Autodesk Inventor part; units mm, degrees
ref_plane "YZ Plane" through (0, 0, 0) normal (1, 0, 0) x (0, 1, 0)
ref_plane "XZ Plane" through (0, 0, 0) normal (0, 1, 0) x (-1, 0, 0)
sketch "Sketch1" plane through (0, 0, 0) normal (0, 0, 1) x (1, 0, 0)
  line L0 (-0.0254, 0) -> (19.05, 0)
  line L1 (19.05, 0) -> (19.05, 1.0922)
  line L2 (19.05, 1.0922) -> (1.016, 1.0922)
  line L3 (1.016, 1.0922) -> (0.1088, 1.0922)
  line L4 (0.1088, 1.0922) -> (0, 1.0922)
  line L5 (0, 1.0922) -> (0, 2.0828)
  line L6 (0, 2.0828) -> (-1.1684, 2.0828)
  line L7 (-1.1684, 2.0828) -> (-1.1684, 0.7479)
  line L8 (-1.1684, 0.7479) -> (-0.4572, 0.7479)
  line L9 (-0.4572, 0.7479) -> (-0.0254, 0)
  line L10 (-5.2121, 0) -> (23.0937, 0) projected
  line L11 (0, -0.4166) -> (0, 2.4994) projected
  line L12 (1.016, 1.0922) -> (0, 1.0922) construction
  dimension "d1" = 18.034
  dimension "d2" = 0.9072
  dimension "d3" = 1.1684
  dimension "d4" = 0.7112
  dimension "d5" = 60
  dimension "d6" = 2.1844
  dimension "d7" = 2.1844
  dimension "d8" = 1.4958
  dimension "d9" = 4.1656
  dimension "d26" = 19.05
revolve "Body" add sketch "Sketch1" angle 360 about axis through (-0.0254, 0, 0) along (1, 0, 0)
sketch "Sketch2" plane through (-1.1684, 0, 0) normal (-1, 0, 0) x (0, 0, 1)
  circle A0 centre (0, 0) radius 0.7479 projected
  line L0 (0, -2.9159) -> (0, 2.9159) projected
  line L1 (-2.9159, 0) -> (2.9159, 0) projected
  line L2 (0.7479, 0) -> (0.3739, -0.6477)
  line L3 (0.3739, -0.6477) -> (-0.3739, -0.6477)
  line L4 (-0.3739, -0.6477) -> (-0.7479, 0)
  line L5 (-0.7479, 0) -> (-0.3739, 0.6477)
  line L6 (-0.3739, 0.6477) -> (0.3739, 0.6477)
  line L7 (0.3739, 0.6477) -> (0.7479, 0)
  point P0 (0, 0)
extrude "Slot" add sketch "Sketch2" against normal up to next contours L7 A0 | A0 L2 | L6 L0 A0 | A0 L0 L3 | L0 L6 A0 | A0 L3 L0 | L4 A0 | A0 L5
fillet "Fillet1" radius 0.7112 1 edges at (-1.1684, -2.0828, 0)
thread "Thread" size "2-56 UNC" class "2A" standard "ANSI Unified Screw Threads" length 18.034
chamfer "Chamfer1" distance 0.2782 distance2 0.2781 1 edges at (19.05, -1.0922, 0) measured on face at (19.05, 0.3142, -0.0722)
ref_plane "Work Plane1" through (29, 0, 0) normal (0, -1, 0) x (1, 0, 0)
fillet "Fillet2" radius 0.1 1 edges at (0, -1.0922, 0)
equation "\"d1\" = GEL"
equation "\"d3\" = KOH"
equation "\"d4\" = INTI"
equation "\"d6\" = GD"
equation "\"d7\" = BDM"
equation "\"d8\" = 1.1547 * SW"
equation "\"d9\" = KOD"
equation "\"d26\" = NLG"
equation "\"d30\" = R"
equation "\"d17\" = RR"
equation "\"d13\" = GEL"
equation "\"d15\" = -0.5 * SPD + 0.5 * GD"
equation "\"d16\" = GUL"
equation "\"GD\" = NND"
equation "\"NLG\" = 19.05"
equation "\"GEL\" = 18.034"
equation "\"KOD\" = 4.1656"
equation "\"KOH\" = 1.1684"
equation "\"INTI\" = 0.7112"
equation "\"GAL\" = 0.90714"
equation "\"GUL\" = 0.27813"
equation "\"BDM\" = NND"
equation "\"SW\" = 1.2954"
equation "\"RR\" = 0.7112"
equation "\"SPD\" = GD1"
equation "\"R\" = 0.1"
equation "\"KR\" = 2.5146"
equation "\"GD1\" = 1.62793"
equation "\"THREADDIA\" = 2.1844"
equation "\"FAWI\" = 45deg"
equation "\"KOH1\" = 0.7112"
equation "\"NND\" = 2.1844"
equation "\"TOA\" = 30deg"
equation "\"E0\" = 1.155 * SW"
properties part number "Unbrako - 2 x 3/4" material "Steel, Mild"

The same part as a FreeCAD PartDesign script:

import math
import FreeCAD as App
import Part
import Sketcher
Q = App.Units.Quantity


def edges_at(feature, points):
    """Names of the edges that pass closest to the given points."""
    edges = feature.Shape.Edges
    near = lambda p: min(range(len(edges)), key=lambda i: edges[i].distToShape(Part.Vertex(*p))[0])
    return sorted({f"Edge{near(p) + 1}" for p in points})

doc = App.newDocument("Part")
params = doc.addObject("Spreadsheet::Sheet", "Params")
for row, (alias, value) in enumerate([
    ("sketch1_width", "0.75 in"),
    ("sketch1_width2", "0.046 in"),
    ("sketch1_width3", "0.028 in"),
    ("sketch1_width4", "0.751 in"),
    ("sketch1_height", "0.043 in"),
    ("revolution_angle", "360 deg"),
    ("pad1_length", "0.7691 mm"),
    ("fillet_radius", "0.028 in"),
    ("chamfer_size", "0.2782 mm"),
    ("chamfer_size2", "0.2781 mm"),
    ("fillet2_radius", "0.1 mm"),
], start=1):
    params.set(f"A{row}", alias)
    params.set(f"B{row}", "=" + value)
    params.setAlias(f"B{row}", alias)

body = doc.addObject("PartDesign::Body", "Body")

sketch1 = body.newObject("Sketcher::SketchObject", "Sketch")
sketch1.AttachmentSupport = (doc.getObject("XY_Plane"), [""])
sketch1.MapMode = "FlatFace"
sketch1.addGeometry([
    Part.LineSegment(App.Vector(-0.5, 0.7, 0), App.Vector(0, 0, 0)),
    Part.LineSegment(App.Vector(0, 0, 0), App.Vector(19.1, 0, 0)),
    Part.LineSegment(App.Vector(19.1, 0, 0), App.Vector(19.1, 1.1, 0)),
    Part.LineSegment(App.Vector(19.1, 1.1, 0), App.Vector(0, 1.1, 0)),
    Part.LineSegment(App.Vector(0, 1.1, 0), App.Vector(0, 2.1, 0)),
    Part.LineSegment(App.Vector(0, 2.1, 0), App.Vector(-1.2, 2.1, 0)),
    Part.LineSegment(App.Vector(-1.2, 2.1, 0), App.Vector(-1.2, 0.7, 0)),
    Part.LineSegment(App.Vector(-1.2, 0.7, 0), App.Vector(-0.5, 0.7, 0)),
], False)
sketch1.addConstraint([
    Sketcher.Constraint("Coincident", 0, 2, 1, 1),
    Sketcher.Constraint("Coincident", 1, 2, 2, 1),
    Sketcher.Constraint("Coincident", 2, 2, 3, 1),
    Sketcher.Constraint("Coincident", 3, 2, 4, 1),
    Sketcher.Constraint("Coincident", 4, 2, 5, 1),
    Sketcher.Constraint("Coincident", 5, 2, 6, 1),
    Sketcher.Constraint("Coincident", 6, 2, 7, 1),
    Sketcher.Constraint("Coincident", 7, 2, 0, 1),
    Sketcher.Constraint("Horizontal", 1),
    Sketcher.Constraint("Vertical", 2),
    Sketcher.Constraint("Horizontal", 3),
    Sketcher.Constraint("Vertical", 4),
    Sketcher.Constraint("Horizontal", 5),
    Sketcher.Constraint("Vertical", 6),
    Sketcher.Constraint("Horizontal", 7),
    Sketcher.Constraint("PointOnObject", 0, 2, -1),
    Sketcher.Constraint("PointOnObject", 3, 2, -2),
    Sketcher.Constraint("Angle", 0, Q("-60 deg")),
    Sketcher.Constraint("DistanceX", 3, 2, 3, 1, Q("0.75 in")),
    Sketcher.Constraint("DistanceX", 5, 2, 5, 1, Q("0.046 in")),
    Sketcher.Constraint("DistanceX", 7, 1, 7, 2, Q("0.028 in")),
    Sketcher.Constraint("DistanceX", 1, 1, 1, 2, Q("0.751 in")),
    Sketcher.Constraint("DistanceY", 2, 1, 2, 2, Q("0.043 in")),
    Sketcher.Constraint("DistanceY", 4, 1, 4, 2, Q("0.039 in")),
])
sketch1.setExpression("Constraints[18]", "Params.sketch1_width")
sketch1.setExpression("Constraints[19]", "Params.sketch1_width2")
sketch1.setExpression("Constraints[20]", "Params.sketch1_width3")
sketch1.setExpression("Constraints[21]", "Params.sketch1_width4")
sketch1.setExpression("Constraints[22]", "Params.sketch1_height")
revolution = body.newObject("PartDesign::Revolution", "Revolution")
revolution.Profile = sketch1
revolution.ReferenceAxis = (sketch1, ["H_Axis"])
revolution.setExpression("Angle", "Params.revolution_angle")

sketch2 = body.newObject("Sketcher::SketchObject", "Sketch001")
sketch2.AttachmentSupport = (doc.getObject("YZ_Plane"), [""])
sketch2.MapMode = "FlatFace"
sketch2.AttachmentOffset = App.Placement(App.Vector(0, 0, -0.046 * 25.4), App.Rotation())
sketch2.addGeometry([
    Part.LineSegment(App.Vector(0.6, 0.4, 0), App.Vector(0, 0.7, 0)),
    Part.ArcOfCircle(Part.Circle(App.Vector(0, 0, 0), App.Vector(0, 0, 1), 0.7), math.radians(30), math.radians(90)),
    Part.ArcOfCircle(Part.Circle(App.Vector(0, 0, 0), App.Vector(0, 0, 1), 0.7), math.radians(90), math.radians(150)),
    Part.LineSegment(App.Vector(0, 0.7, 0), App.Vector(-0.6, 0.4, 0)),
    Part.ArcOfCircle(Part.Circle(App.Vector(0, 0, 0), App.Vector(0, 0, 1), 0.7), math.radians(-30), math.radians(30)),
    Part.LineSegment(App.Vector(0.6, 0.4, 0), App.Vector(0.6, -0.4, 0)),
    Part.LineSegment(App.Vector(-0.6, 0.4, 0), App.Vector(-0.6, -0.4, 0)),
    Part.ArcOfCircle(Part.Circle(App.Vector(0, 0, 0), App.Vector(0, 0, 1), 0.7), math.radians(150), math.radians(210)),
    Part.LineSegment(App.Vector(-0.6, -0.4, 0), App.Vector(0, -0.7, 0)),
    Part.ArcOfCircle(Part.Circle(App.Vector(0, 0, 0), App.Vector(0, 0, 1), 0.7), math.radians(-150), math.radians(-90)),
    Part.ArcOfCircle(Part.Circle(App.Vector(0, 0, 0), App.Vector(0, 0, 1), 0.7), math.radians(-90), math.radians(-30)),
    Part.LineSegment(App.Vector(0, -0.7, 0), App.Vector(0.6, -0.4, 0)),
], False)
sketch2.addConstraint([
    Sketcher.Constraint("Coincident", 0, 1, 1, 1),
    Sketcher.Constraint("Coincident", 1, 2, 0, 2),
    Sketcher.Constraint("Coincident", 2, 1, 3, 1),
    Sketcher.Constraint("Coincident", 3, 2, 2, 2),
    Sketcher.Constraint("Coincident", 4, 1, 5, 2),
    Sketcher.Constraint("Coincident", 5, 1, 4, 2),
    Sketcher.Constraint("Coincident", 6, 1, 7, 1),
    Sketcher.Constraint("Coincident", 7, 2, 6, 2),
    Sketcher.Constraint("Coincident", 8, 1, 9, 1),
    Sketcher.Constraint("Coincident", 9, 2, 8, 2),
    Sketcher.Constraint("Coincident", 10, 1, 11, 1),
    Sketcher.Constraint("Coincident", 11, 2, 10, 2),
    Sketcher.Constraint("Vertical", 5),
    Sketcher.Constraint("Vertical", 6),
    Sketcher.Constraint("Coincident", 1, 3, -1, 1),
    Sketcher.Constraint("Coincident", 2, 3, -1, 1),
    Sketcher.Constraint("Coincident", 4, 3, -1, 1),
    Sketcher.Constraint("Coincident", 7, 3, -1, 1),
    Sketcher.Constraint("Coincident", 9, 3, -1, 1),
    Sketcher.Constraint("Coincident", 10, 3, -1, 1),
    Sketcher.Constraint("Coincident", 2, 1, 1, 2),
    Sketcher.Constraint("Coincident", 5, 1, 0, 1),
    Sketcher.Constraint("Coincident", 6, 1, 3, 2),
    Sketcher.Constraint("Coincident", 8, 1, 7, 2),
    Sketcher.Constraint("Coincident", 10, 1, 9, 2),
    Sketcher.Constraint("PointOnObject", 1, 2, -2),
    Sketcher.Constraint("PointOnObject", 9, 2, -2),
    Sketcher.Constraint("Parallel", 0, 8),
    Sketcher.Constraint("Parallel", 3, 11),
    Sketcher.Constraint("Radius", 1, 0.748),
    Sketcher.Constraint("DistanceY", 5, 2, 5, 1, 0.7478),
])
pad1 = body.newObject("PartDesign::Pad", "Pad")
pad1.Profile = sketch2
pad1.setExpression("Length", "Params.pad1_length")
doc.recompute()

fillet = body.newObject("PartDesign::Fillet", "Fillet")
fillet.Base = (pad1, edges_at(pad1, [(-1.168, -2.083, 0)]))
fillet.setExpression("Radius", "Params.fillet_radius")
doc.recompute()

chamfer = body.newObject("PartDesign::Chamfer", "Chamfer")
chamfer.Base = (fillet, edges_at(fillet, [(19.05, -1.092, 0)]))
chamfer.ChamferType = "Two distances"
chamfer.setExpression("Size", "Params.chamfer_size")
chamfer.setExpression("Size2", "Params.chamfer_size2")
doc.recompute()

fillet2 = body.newObject("PartDesign::Fillet", "Fillet001")
fillet2.Base = (chamfer, edges_at(chamfer, [(0, -1.092, 0)]))
fillet2.setExpression("Radius", "Params.fillet2_radius")

doc.recompute()
